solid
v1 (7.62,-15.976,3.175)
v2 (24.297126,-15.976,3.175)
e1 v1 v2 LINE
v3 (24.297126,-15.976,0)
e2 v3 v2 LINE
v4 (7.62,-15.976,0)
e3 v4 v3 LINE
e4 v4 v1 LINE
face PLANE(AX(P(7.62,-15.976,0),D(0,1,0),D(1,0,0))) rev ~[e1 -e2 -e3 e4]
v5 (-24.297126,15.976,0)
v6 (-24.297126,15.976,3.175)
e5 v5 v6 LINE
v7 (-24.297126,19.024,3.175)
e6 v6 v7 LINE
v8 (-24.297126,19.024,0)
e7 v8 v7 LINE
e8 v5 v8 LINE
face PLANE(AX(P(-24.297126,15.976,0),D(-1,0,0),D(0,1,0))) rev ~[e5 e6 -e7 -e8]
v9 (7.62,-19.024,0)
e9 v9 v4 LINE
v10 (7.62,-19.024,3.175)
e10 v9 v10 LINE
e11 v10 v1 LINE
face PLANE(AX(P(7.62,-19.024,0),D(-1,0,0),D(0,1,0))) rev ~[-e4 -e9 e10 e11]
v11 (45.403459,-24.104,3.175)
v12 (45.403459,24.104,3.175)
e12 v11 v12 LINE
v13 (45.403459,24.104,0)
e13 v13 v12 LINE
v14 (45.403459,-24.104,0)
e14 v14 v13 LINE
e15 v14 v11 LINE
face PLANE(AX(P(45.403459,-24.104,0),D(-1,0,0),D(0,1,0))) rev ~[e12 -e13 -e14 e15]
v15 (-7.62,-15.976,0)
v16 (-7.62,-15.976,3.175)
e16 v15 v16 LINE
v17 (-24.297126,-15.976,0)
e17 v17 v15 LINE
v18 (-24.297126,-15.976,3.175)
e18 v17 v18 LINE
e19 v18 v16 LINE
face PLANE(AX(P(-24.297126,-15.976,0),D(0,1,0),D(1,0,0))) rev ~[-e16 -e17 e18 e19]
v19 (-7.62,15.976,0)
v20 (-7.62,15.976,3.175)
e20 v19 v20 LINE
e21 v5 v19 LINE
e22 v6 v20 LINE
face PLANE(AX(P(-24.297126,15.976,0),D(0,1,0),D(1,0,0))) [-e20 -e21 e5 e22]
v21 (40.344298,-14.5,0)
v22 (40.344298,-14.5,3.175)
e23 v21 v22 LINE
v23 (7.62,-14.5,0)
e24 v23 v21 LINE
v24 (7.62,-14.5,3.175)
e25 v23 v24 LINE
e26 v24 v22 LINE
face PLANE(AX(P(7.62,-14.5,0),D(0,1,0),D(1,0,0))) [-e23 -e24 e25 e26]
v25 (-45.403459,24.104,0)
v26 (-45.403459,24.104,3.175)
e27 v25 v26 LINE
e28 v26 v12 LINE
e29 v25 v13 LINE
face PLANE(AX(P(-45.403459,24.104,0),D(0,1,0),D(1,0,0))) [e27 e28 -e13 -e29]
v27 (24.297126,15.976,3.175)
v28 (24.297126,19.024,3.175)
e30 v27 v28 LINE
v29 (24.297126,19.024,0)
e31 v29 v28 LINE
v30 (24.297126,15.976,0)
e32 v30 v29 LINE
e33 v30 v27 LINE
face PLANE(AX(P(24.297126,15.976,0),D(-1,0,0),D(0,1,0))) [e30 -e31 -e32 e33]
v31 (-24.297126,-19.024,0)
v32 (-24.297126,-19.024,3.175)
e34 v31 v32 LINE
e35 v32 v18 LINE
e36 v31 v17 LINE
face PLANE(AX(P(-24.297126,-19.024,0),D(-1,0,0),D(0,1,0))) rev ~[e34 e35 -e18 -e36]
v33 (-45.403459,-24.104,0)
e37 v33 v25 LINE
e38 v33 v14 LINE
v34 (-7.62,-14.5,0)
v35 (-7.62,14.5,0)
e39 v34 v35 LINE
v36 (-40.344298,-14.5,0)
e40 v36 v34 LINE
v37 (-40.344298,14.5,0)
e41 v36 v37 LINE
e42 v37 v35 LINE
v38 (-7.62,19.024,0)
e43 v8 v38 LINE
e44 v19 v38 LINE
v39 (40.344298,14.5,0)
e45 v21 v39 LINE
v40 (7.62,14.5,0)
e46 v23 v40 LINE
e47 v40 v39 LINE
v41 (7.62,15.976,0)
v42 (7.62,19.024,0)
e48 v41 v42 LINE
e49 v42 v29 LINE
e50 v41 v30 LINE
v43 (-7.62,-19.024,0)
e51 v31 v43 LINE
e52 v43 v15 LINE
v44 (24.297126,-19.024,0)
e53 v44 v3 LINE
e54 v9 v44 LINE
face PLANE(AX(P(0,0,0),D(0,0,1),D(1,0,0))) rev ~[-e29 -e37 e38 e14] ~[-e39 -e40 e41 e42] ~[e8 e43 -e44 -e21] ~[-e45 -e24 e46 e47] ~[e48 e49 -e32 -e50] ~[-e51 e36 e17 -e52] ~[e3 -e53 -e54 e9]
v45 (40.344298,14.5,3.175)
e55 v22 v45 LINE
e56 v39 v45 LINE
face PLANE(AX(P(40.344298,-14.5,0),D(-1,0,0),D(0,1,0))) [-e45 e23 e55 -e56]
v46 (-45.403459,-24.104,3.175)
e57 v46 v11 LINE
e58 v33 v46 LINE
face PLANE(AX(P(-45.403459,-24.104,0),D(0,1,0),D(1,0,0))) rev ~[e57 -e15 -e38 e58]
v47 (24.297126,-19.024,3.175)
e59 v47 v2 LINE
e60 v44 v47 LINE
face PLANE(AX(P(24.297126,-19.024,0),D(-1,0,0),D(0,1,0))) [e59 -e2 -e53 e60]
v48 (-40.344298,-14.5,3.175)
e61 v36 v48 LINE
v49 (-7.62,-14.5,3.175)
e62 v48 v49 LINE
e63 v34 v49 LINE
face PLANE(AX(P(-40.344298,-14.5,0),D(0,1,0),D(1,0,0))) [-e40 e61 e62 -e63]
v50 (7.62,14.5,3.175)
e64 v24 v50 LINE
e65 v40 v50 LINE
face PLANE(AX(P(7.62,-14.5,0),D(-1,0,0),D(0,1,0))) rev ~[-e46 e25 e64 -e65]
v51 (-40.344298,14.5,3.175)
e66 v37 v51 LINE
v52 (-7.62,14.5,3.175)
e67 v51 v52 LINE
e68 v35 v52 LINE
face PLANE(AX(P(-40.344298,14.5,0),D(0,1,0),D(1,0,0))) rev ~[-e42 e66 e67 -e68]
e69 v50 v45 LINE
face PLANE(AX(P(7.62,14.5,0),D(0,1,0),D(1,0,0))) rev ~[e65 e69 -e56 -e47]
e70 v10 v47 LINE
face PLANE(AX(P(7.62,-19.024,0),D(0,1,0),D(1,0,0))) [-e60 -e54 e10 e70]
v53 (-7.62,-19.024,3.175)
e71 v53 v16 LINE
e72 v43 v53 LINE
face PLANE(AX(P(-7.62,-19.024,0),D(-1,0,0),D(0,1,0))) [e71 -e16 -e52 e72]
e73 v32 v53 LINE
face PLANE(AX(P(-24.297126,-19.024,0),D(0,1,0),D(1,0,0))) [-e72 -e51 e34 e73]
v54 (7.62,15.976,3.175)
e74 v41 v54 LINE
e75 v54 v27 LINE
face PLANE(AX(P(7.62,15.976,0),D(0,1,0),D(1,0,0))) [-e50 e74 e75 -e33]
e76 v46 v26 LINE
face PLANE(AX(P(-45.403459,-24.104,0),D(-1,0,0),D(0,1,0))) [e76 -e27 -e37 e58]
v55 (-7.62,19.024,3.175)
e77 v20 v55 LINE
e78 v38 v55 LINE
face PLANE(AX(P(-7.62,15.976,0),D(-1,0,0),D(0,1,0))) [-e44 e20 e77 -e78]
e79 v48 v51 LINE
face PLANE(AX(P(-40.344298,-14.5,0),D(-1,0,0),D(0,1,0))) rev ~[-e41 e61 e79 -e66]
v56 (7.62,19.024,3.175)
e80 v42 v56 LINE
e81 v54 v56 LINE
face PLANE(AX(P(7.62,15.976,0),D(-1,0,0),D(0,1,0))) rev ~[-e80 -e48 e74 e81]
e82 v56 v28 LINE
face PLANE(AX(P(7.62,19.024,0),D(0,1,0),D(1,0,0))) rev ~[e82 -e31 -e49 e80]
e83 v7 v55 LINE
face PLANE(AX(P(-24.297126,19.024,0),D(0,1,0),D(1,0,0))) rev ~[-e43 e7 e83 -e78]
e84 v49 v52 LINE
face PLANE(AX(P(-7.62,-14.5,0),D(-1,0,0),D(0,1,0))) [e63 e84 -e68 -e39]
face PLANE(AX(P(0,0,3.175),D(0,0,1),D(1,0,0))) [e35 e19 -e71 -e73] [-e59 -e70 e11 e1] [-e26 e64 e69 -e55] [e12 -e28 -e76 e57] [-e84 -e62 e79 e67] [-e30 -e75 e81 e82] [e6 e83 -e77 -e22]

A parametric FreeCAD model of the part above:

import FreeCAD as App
import Part
import Sketcher
Q = App.Units.Quantity


def add_polygon(sketch, points):
    """Adds a closed chain of lines whose ends are joined by coincident constraints."""
    first, n = sketch.GeometryCount, len(points)
    for a, b in zip(points, points[1:] + points[:1]):
        sketch.addGeometry(Part.LineSegment(App.Vector(*a, 0), App.Vector(*b, 0)), False)
    for i in range(n):
        sketch.addConstraint(Sketcher.Constraint("Coincident", first + i, 2, first + (i + 1) % n, 1))

doc = App.newDocument("Part")
params = doc.addObject("Spreadsheet::Sheet", "Params")
for row, (alias, value) in enumerate([
    ("sketch1_height", "0.12 in"),
    ("pad1_length", "0.125 in"),
], start=1):
    params.set(f"A{row}", alias)
    params.set(f"B{row}", "=" + value)
    params.setAlias(f"B{row}", alias)

body = doc.addObject("PartDesign::Body", "Body")

sketch1 = body.newObject("Sketcher::SketchObject", "Sketch")
sketch1.AttachmentSupport = (doc.getObject("XY_Plane"), [""])
sketch1.MapMode = "FlatFace"
add_polygon(sketch1, [(-45.4, 24.1), (-45.4, -24.1), (45.4, -24.1), (45.4, 24.1)])
add_polygon(sketch1, [(-7.6, -19), (-24.3, -19), (-24.3, -16), (-7.6, -16)])
add_polygon(sketch1, [(24.3, -19), (7.6, -19), (7.6, -16), (24.3, -16)])
add_polygon(sketch1, [(-7.6, -14.5), (-40.3, -14.5), (-40.3, 14.5), (-7.6, 14.5)])
add_polygon(sketch1, [(-7.6, 16), (-24.3, 16), (-24.3, 19), (-7.6, 19)])
add_polygon(sketch1, [(40.3, -14.5), (7.6, -14.5), (7.6, 14.5), (40.3, 14.5)])
add_polygon(sketch1, [(24.3, 16), (7.6, 16), (7.6, 19), (24.3, 19)])
sketch1.addConstraint([
    Sketcher.Constraint("Vertical", 0),
    Sketcher.Constraint("Horizontal", 1),
    Sketcher.Constraint("Vertical", 2),
    Sketcher.Constraint("Horizontal", 3),
    Sketcher.Constraint("Horizontal", 4),
    Sketcher.Constraint("Vertical", 5),
    Sketcher.Constraint("Horizontal", 6),
    Sketcher.Constraint("Vertical", 7),
    Sketcher.Constraint("Horizontal", 8),
    Sketcher.Constraint("Vertical", 9),
    Sketcher.Constraint("Horizontal", 10),
    Sketcher.Constraint("Vertical", 11),
    Sketcher.Constraint("Horizontal", 12),
    Sketcher.Constraint("Vertical", 13),
    Sketcher.Constraint("Horizontal", 14),
    Sketcher.Constraint("Vertical", 15),
    Sketcher.Constraint("Horizontal", 16),
    Sketcher.Constraint("Vertical", 17),
    Sketcher.Constraint("Horizontal", 18),
    Sketcher.Constraint("Vertical", 19),
    Sketcher.Constraint("Horizontal", 20),
    Sketcher.Constraint("Vertical", 21),
    Sketcher.Constraint("Horizontal", 22),
    Sketcher.Constraint("Vertical", 23),
    Sketcher.Constraint("Horizontal", 24),
    Sketcher.Constraint("Vertical", 25),
    Sketcher.Constraint("Horizontal", 26),
    Sketcher.Constraint("Vertical", 27),
    Sketcher.Constraint("Symmetric", 0, 2, 2, 2, -1, 1),
    Sketcher.Constraint("Symmetric", 10, 2, 16, 2, -1, 1),
    Sketcher.Constraint("Symmetric", 8, 2, 18, 2, -1, 1),
    Sketcher.Constraint("Symmetric", 14, 2, 20, 2, -1, 1),
    Sketcher.Constraint("Symmetric", 12, 2, 22, 2, -1, 1),
    Sketcher.Constraint("Symmetric", 6, 2, 24, 2, -1, 1),
    Sketcher.Constraint("Symmetric", 4, 2, 26, 2, -1, 1),
    Sketcher.Constraint("Symmetric", 7, 2, 8, 2, -2),
    Sketcher.Constraint("Symmetric", 5, 2, 10, 2, -2),
    Sketcher.Constraint("Horizontal", 15, 2, 20, 2),
    Sketcher.Constraint("Vertical", 7, 2, 14, 2),
    Sketcher.Constraint("DistanceY", 5, 1, 5, 2, Q("0.12 in")),
    Sketcher.Constraint("DistanceX", 6, 2, -1, 1, Q("0.3 in")),
    Sketcher.Constraint("DistanceY", 0, 2, 4, 2, Q("0.2 in")),
    Sketcher.Constraint("DistanceX", 12, 2, 12, 1, 32.724298),
    Sketcher.Constraint("DistanceY", 0, 2, 0, 1, 48.208),
    Sketcher.Constraint("DistanceY", 13, 1, 13, 2, 29.0),
    Sketcher.Constraint("DistanceX", 1, 1, 1, 2, 90.806918),
    Sketcher.Constraint("DistanceX", 4, 2, 4, 1, 16.677126),
])
sketch1.setExpression("Constraints[67]", "Params.sketch1_height")
pad1 = body.newObject("PartDesign::Pad", "Pad")
pad1.Profile = sketch1
pad1.setExpression("Length", "Params.pad1_length")

doc.recompute()
